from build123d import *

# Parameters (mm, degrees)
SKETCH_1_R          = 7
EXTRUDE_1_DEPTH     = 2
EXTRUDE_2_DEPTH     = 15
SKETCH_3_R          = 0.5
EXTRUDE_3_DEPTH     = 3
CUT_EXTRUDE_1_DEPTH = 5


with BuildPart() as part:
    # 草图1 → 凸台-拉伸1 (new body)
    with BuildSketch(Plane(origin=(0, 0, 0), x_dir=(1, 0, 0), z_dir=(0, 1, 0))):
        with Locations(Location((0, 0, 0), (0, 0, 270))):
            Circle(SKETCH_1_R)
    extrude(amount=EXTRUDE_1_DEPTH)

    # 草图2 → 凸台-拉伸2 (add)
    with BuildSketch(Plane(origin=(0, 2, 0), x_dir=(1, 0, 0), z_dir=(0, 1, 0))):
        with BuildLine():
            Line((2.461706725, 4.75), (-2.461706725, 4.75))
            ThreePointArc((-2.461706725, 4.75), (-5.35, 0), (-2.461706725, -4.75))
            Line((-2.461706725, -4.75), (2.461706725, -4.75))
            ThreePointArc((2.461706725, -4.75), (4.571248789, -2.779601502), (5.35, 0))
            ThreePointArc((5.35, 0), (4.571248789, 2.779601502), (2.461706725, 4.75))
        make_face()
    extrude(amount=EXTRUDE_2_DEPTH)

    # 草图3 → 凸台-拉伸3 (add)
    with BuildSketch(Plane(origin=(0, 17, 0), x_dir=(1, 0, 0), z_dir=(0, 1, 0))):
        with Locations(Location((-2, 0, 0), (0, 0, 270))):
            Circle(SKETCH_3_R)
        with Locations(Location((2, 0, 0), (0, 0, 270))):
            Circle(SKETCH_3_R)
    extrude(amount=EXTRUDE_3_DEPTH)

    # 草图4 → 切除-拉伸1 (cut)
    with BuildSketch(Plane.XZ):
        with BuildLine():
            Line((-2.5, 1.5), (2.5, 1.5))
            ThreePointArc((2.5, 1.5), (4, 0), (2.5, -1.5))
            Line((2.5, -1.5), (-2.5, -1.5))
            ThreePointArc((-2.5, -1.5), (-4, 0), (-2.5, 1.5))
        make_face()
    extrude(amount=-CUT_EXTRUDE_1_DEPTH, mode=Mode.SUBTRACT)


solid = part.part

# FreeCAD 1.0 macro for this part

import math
import FreeCAD as App
import Part
import Sketcher
from FreeCAD import Vector
Q = App.Units.Quantity

doc = App.newDocument("Part")
params = doc.addObject("Spreadsheet::Sheet", "Params")
for row, (alias, value) in enumerate([
    ("sketch1_diameter", "14 mm"),
    ("pad1_length", "2 mm"),
    ("sketch2_radius", "5.35 mm"),
    ("pad2_length", "15 mm"),
    ("sketch3_diameter", "1 mm"),
    ("pad3_length", "3 mm"),
    ("sketch4_radius", "1.5 mm"),
    ("sketch4_width", "5 mm"),
    ("pocket1_length", "5 mm"),
], start=1):
    params.set(f"A{row}", alias)
    params.set(f"B{row}", "=" + value)
    params.setAlias(f"B{row}", alias)

body = doc.addObject("PartDesign::Body", "Body")

sketch1 = body.newObject("Sketcher::SketchObject", "Sketch")
sketch1.AttachmentSupport = (doc.getObject("XZ_Plane"), [""])
sketch1.MapMode = "FlatFace"
sketch1.addGeometry(Part.Circle(Vector(0, 0, 0), Vector(0, 0, 1), 7), False)
sketch1.addConstraint([
    Sketcher.Constraint("Coincident", 0, 3, -1, 1),
    Sketcher.Constraint("Diameter", 0, Q("14 mm")),
])
sketch1.setExpression("Constraints[1]", "Params.sketch1_diameter")
pad1 = body.newObject("PartDesign::Pad", "Pad")
pad1.Profile = sketch1
pad1.setExpression("Length", "Params.pad1_length")
pad1.Reversed = True

sketch2 = body.newObject("Sketcher::SketchObject", "Sketch001")
sketch2.AttachmentSupport = (doc.getObject("XZ_Plane"), [""])
sketch2.MapMode = "FlatFace"
sketch2.AttachmentOffset = App.Placement(Vector(0, 0, -2), App.Rotation())
sketch2.addGeometry([
    Part.LineSegment(Vector(2.461707, -4.75, 0), Vector(-2.461707, -4.75, 0)),
    Part.ArcOfCircle(Part.Circle(Vector(0, 0, 0), Vector(0, 0, 1), 5.35), math.radians(117.395632), math.radians(242.604368)),
    Part.LineSegment(Vector(-2.461707, 4.75, 0), Vector(2.461707, 4.75, 0)),
    Part.ArcOfCircle(Part.Circle(Vector(0, 0, 0), Vector(0, 0, 1), 5.35), math.radians(0), math.radians(62.604368)),
    Part.ArcOfCircle(Part.Circle(Vector(0, 0, 0), Vector(0, 0, 1), 5.35), math.radians(-62.604368), math.radians(0)),
], False)
sketch2.addConstraint([
    Sketcher.Constraint("Coincident", 0, 2, 1, 2),
    Sketcher.Constraint("Coincident", 1, 1, 2, 1),
    Sketcher.Constraint("Coincident", 2, 2, 3, 2),
    Sketcher.Constraint("Tangent", 3, 1, 4, 2),
    Sketcher.Constraint("Coincident", 4, 1, 0, 1),
    Sketcher.Constraint("Horizontal", 0),
    Sketcher.Constraint("Horizontal", 2),
    Sketcher.Constraint("Coincident", 1, 3, -1, 1),
    Sketcher.Constraint("Coincident", 3, 3, -1, 1),
    Sketcher.Constraint("Equal", 1, 3),
    Sketcher.Constraint("Equal", 3, 4),
    Sketcher.Constraint("PointOnObject", 3, 1, -1),
    Sketcher.Constraint("Vertical", 0, 2, 1, 1),
    Sketcher.Constraint("Radius", 1, Q("5.35 mm")),
    Sketcher.Constraint("DistanceY", 0, 2, 1, 1, Q("9.5 mm")),
])
sketch2.setExpression("Constraints[13]", "Params.sketch2_radius")
pad2 = body.newObject("PartDesign::Pad", "Pad001")
pad2.Profile = sketch2
pad2.setExpression("Length", "Params.pad2_length")
pad2.Reversed = True

sketch3 = body.newObject("Sketcher::SketchObject", "Sketch002")
sketch3.AttachmentSupport = (doc.getObject("XZ_Plane"), [""])
sketch3.MapMode = "FlatFace"
sketch3.AttachmentOffset = App.Placement(Vector(0, 0, -17), App.Rotation())
sketch3.addGeometry([
    Part.Circle(Vector(-2, 0, 0), Vector(0, 0, 1), 0.5),
    Part.Circle(Vector(2, 0, 0), Vector(0, 0, 1), 0.5),
], False)
sketch3.addConstraint([
    Sketcher.Constraint("Equal", 0, 1),
    Sketcher.Constraint("Symmetric", 0, 3, 1, 3, -1, 1),
    Sketcher.Constraint("PointOnObject", 0, 3, -1),
    Sketcher.Constraint("Diameter", 0, Q("1 mm")),
    Sketcher.Constraint("DistanceX", 0, 3, -1, 1, Q("2 mm")),
])
sketch3.setExpression("Constraints[3]", "Params.sketch3_diameter")
pad3 = body.newObject("PartDesign::Pad", "Pad002")
pad3.Profile = sketch3
pad3.setExpression("Length", "Params.pad3_length")
pad3.Reversed = True

sketch4 = body.newObject("Sketcher::SketchObject", "Sketch003")
sketch4.AttachmentSupport = (doc.getObject("XZ_Plane"), [""])
sketch4.MapMode = "FlatFace"
sketch4.addGeometry([
    Part.LineSegment(Vector(2.5, 1.5, 0), Vector(-2.5, 1.5, 0)),
    Part.ArcOfCircle(Part.Circle(Vector(-2.5, 0, 0), Vector(0, 0, 1), 1.5), math.radians(90), math.radians(270)),
    Part.LineSegment(Vector(-2.5, -1.5, 0), Vector(2.5, -1.5, 0)),
    Part.ArcOfCircle(Part.Circle(Vector(2.5, 0, 0), Vector(0, 0, 1), 1.5), math.radians(-90), math.radians(90)),
], False)
sketch4.addConstraint([
    Sketcher.Constraint("Tangent", 0, 2, 1, 1),
    Sketcher.Constraint("Tangent", 1, 2, 2, 1),
    Sketcher.Constraint("Tangent", 2, 2, 3, 1),
    Sketcher.Constraint("Tangent", 3, 2, 0, 1),
    Sketcher.Constraint("Horizontal", 0),
    Sketcher.Constraint("Horizontal", 2),
    Sketcher.Constraint("Symmetric", 1, 3, 3, 3, -1, 1),
    Sketcher.Constraint("Radius", 1, Q("1.5 mm")),
    Sketcher.Constraint("DistanceX", 0, 2, 0, 1, Q("5 mm")),
])
sketch4.setExpression("Constraints[7]", "Params.sketch4_radius")
sketch4.setExpression("Constraints[8]", "Params.sketch4_width")
pocket1 = body.newObject("PartDesign::Pocket", "Pocket")
pocket1.Profile = sketch4
pocket1.setExpression("Length", "Params.pocket1_length")

doc.recompute()
